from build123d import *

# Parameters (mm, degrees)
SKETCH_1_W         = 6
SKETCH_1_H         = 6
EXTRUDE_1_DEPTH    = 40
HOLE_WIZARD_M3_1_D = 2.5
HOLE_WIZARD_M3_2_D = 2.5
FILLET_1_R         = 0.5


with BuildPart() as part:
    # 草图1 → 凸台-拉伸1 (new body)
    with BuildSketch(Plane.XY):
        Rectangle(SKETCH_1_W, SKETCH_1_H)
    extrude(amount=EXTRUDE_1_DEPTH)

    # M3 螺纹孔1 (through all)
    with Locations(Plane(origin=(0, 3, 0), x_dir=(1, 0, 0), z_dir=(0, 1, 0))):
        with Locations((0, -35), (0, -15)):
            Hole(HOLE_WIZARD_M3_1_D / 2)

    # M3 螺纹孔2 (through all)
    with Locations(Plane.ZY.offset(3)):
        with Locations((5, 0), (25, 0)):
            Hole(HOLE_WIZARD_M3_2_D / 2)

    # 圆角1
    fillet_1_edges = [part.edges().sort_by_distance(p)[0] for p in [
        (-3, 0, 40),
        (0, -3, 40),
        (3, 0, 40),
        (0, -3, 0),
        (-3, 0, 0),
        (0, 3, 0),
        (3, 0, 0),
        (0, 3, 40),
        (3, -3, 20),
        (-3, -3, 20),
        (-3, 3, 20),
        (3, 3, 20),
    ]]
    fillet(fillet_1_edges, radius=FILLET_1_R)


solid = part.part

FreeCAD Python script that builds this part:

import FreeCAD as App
import Part
import Sketcher
from FreeCAD import Vector


def edges_at(feature, points):
    """Names of the edges that pass closest to the given points."""
    edges = feature.Shape.Edges
    near = lambda p: min(range(len(edges)), key=lambda i: edges[i].distToShape(Part.Vertex(*p))[0])
    return sorted({f"Edge{near(p) + 1}" for p in points})

doc = App.newDocument("Part")
body = doc.addObject("PartDesign::Body", "Body")

# Sketch on XY plane
sketch1 = body.newObject("Sketcher::SketchObject", "Sketch")
sketch1.AttachmentSupport = (doc.getObject("XY_Plane"), [""])
sketch1.MapMode = "FlatFace"
sketch1.addGeometry(Part.LineSegment(Vector(-3, 3, 0), Vector(-3, -3, 0)), False)
sketch1.addGeometry(Part.LineSegment(Vector(-3, -3, 0), Vector(3, -3, 0)), False)
sketch1.addGeometry(Part.LineSegment(Vector(3, -3, 0), Vector(3, 3, 0)), False)
sketch1.addGeometry(Part.LineSegment(Vector(3, 3, 0), Vector(-3, 3, 0)), False)
sketch1.addConstraint(Sketcher.Constraint("Coincident", 0, 2, 1, 1))
sketch1.addConstraint(Sketcher.Constraint("Coincident", 1, 2, 2, 1))
sketch1.addConstraint(Sketcher.Constraint("Coincident", 2, 2, 3, 1))
sketch1.addConstraint(Sketcher.Constraint("Coincident", 3, 2, 0, 1))
sketch1.addConstraint(Sketcher.Constraint("Vertical", 0))
sketch1.addConstraint(Sketcher.Constraint("Horizontal", 1))
sketch1.addConstraint(Sketcher.Constraint("Vertical", 2))
sketch1.addConstraint(Sketcher.Constraint("Horizontal", 3))
sketch1.addConstraint(Sketcher.Constraint("Symmetric", 0, 2, 2, 2, -1, 1))
sketch1.addConstraint(Sketcher.Constraint("Equal", 3, 0))
sketch1.addConstraint(Sketcher.Constraint("DistanceX", 1, 1, 1, 2, 6.0))
pad1 = body.newObject("PartDesign::Pad", "Pad")
pad1.Profile = sketch1
pad1.Length = 40

# Sketch on XZ plane
sketch2 = body.newObject("Sketcher::SketchObject", "Sketch001")
sketch2.AttachmentSupport = (doc.getObject("XZ_Plane"), [""])
sketch2.MapMode = "FlatFace"
sketch2.AttachmentOffset = App.Placement(Vector(0, 0, -3), App.Rotation())
sketch2.addGeometry(Part.Circle(Vector(0, 35, 0), Vector(0, 0, 1), 1.2), False)
sketch2.addGeometry(Part.Circle(Vector(0, 15, 0), Vector(0, 0, 1), 1.2), False)
sketch2.addConstraint(Sketcher.Constraint("Equal", 0, 1))
sketch2.addConstraint(Sketcher.Constraint("PointOnObject", 0, 3, -2))
sketch2.addConstraint(Sketcher.Constraint("PointOnObject", 1, 3, -2))
sketch2.addConstraint(Sketcher.Constraint("Diameter", 0, 2.5))
sketch2.addConstraint(Sketcher.Constraint("DistanceY", -1, 1, 0, 3, 35.0))
sketch2.addConstraint(Sketcher.Constraint("DistanceY", -1, 1, 1, 3, 15.0))
doc.recompute()
hole = body.newObject("PartDesign::Hole", "Hole")
hole.Profile = sketch2
hole.ThreadType = "None"
hole.Diameter = 2.5
hole.DepthType = "ThroughAll"
hole.Reversed = True

# Sketch on YZ plane
sketch3 = body.newObject("Sketcher::SketchObject", "Sketch002")
sketch3.AttachmentSupport = (doc.getObject("YZ_Plane"), [""])
sketch3.MapMode = "FlatFace"
sketch3.AttachmentOffset = App.Placement(Vector(0, 0, -3), App.Rotation())
sketch3.addGeometry(Part.Circle(Vector(0, 5, 0), Vector(0, 0, 1), 1.2), False)
sketch3.addGeometry(Part.Circle(Vector(0, 25, 0), Vector(0, 0, 1), 1.2), False)
sketch3.addConstraint(Sketcher.Constraint("Equal", 0, 1))
sketch3.addConstraint(Sketcher.Constraint("PointOnObject", 0, 3, -2))
sketch3.addConstraint(Sketcher.Constraint("PointOnObject", 1, 3, -2))
sketch3.addConstraint(Sketcher.Constraint("Diameter", 0, 2.5))
sketch3.addConstraint(Sketcher.Constraint("DistanceY", -1, 1, 0, 3, 5.0))
sketch3.addConstraint(Sketcher.Constraint("DistanceY", -1, 1, 1, 3, 25.0))
doc.recompute()
hole2 = body.newObject("PartDesign::Hole", "Hole001")
hole2.Profile = sketch3
hole2.ThreadType = "None"
hole2.Diameter = 2.5
hole2.DepthType = "ThroughAll"
hole2.Reversed = True
doc.recompute()

fillet = body.newObject("PartDesign::Fillet", "Fillet")
fillet.Base = (hole2, edges_at(hole2, [
    (-3, 0, 40),
    (0, -3, 40),
    (3, 0, 40),
    (0, -3, 0),
    (-3, 0, 0),
    (0, 3, 0),
    (3, 0, 0),
    (0, 3, 40),
    (3, -3, 20),
    (-3, -3, 20),
    (-3, 3, 20),
    (3, 3, 20),
]))
fillet.Radius = 0.5

doc.recompute()
